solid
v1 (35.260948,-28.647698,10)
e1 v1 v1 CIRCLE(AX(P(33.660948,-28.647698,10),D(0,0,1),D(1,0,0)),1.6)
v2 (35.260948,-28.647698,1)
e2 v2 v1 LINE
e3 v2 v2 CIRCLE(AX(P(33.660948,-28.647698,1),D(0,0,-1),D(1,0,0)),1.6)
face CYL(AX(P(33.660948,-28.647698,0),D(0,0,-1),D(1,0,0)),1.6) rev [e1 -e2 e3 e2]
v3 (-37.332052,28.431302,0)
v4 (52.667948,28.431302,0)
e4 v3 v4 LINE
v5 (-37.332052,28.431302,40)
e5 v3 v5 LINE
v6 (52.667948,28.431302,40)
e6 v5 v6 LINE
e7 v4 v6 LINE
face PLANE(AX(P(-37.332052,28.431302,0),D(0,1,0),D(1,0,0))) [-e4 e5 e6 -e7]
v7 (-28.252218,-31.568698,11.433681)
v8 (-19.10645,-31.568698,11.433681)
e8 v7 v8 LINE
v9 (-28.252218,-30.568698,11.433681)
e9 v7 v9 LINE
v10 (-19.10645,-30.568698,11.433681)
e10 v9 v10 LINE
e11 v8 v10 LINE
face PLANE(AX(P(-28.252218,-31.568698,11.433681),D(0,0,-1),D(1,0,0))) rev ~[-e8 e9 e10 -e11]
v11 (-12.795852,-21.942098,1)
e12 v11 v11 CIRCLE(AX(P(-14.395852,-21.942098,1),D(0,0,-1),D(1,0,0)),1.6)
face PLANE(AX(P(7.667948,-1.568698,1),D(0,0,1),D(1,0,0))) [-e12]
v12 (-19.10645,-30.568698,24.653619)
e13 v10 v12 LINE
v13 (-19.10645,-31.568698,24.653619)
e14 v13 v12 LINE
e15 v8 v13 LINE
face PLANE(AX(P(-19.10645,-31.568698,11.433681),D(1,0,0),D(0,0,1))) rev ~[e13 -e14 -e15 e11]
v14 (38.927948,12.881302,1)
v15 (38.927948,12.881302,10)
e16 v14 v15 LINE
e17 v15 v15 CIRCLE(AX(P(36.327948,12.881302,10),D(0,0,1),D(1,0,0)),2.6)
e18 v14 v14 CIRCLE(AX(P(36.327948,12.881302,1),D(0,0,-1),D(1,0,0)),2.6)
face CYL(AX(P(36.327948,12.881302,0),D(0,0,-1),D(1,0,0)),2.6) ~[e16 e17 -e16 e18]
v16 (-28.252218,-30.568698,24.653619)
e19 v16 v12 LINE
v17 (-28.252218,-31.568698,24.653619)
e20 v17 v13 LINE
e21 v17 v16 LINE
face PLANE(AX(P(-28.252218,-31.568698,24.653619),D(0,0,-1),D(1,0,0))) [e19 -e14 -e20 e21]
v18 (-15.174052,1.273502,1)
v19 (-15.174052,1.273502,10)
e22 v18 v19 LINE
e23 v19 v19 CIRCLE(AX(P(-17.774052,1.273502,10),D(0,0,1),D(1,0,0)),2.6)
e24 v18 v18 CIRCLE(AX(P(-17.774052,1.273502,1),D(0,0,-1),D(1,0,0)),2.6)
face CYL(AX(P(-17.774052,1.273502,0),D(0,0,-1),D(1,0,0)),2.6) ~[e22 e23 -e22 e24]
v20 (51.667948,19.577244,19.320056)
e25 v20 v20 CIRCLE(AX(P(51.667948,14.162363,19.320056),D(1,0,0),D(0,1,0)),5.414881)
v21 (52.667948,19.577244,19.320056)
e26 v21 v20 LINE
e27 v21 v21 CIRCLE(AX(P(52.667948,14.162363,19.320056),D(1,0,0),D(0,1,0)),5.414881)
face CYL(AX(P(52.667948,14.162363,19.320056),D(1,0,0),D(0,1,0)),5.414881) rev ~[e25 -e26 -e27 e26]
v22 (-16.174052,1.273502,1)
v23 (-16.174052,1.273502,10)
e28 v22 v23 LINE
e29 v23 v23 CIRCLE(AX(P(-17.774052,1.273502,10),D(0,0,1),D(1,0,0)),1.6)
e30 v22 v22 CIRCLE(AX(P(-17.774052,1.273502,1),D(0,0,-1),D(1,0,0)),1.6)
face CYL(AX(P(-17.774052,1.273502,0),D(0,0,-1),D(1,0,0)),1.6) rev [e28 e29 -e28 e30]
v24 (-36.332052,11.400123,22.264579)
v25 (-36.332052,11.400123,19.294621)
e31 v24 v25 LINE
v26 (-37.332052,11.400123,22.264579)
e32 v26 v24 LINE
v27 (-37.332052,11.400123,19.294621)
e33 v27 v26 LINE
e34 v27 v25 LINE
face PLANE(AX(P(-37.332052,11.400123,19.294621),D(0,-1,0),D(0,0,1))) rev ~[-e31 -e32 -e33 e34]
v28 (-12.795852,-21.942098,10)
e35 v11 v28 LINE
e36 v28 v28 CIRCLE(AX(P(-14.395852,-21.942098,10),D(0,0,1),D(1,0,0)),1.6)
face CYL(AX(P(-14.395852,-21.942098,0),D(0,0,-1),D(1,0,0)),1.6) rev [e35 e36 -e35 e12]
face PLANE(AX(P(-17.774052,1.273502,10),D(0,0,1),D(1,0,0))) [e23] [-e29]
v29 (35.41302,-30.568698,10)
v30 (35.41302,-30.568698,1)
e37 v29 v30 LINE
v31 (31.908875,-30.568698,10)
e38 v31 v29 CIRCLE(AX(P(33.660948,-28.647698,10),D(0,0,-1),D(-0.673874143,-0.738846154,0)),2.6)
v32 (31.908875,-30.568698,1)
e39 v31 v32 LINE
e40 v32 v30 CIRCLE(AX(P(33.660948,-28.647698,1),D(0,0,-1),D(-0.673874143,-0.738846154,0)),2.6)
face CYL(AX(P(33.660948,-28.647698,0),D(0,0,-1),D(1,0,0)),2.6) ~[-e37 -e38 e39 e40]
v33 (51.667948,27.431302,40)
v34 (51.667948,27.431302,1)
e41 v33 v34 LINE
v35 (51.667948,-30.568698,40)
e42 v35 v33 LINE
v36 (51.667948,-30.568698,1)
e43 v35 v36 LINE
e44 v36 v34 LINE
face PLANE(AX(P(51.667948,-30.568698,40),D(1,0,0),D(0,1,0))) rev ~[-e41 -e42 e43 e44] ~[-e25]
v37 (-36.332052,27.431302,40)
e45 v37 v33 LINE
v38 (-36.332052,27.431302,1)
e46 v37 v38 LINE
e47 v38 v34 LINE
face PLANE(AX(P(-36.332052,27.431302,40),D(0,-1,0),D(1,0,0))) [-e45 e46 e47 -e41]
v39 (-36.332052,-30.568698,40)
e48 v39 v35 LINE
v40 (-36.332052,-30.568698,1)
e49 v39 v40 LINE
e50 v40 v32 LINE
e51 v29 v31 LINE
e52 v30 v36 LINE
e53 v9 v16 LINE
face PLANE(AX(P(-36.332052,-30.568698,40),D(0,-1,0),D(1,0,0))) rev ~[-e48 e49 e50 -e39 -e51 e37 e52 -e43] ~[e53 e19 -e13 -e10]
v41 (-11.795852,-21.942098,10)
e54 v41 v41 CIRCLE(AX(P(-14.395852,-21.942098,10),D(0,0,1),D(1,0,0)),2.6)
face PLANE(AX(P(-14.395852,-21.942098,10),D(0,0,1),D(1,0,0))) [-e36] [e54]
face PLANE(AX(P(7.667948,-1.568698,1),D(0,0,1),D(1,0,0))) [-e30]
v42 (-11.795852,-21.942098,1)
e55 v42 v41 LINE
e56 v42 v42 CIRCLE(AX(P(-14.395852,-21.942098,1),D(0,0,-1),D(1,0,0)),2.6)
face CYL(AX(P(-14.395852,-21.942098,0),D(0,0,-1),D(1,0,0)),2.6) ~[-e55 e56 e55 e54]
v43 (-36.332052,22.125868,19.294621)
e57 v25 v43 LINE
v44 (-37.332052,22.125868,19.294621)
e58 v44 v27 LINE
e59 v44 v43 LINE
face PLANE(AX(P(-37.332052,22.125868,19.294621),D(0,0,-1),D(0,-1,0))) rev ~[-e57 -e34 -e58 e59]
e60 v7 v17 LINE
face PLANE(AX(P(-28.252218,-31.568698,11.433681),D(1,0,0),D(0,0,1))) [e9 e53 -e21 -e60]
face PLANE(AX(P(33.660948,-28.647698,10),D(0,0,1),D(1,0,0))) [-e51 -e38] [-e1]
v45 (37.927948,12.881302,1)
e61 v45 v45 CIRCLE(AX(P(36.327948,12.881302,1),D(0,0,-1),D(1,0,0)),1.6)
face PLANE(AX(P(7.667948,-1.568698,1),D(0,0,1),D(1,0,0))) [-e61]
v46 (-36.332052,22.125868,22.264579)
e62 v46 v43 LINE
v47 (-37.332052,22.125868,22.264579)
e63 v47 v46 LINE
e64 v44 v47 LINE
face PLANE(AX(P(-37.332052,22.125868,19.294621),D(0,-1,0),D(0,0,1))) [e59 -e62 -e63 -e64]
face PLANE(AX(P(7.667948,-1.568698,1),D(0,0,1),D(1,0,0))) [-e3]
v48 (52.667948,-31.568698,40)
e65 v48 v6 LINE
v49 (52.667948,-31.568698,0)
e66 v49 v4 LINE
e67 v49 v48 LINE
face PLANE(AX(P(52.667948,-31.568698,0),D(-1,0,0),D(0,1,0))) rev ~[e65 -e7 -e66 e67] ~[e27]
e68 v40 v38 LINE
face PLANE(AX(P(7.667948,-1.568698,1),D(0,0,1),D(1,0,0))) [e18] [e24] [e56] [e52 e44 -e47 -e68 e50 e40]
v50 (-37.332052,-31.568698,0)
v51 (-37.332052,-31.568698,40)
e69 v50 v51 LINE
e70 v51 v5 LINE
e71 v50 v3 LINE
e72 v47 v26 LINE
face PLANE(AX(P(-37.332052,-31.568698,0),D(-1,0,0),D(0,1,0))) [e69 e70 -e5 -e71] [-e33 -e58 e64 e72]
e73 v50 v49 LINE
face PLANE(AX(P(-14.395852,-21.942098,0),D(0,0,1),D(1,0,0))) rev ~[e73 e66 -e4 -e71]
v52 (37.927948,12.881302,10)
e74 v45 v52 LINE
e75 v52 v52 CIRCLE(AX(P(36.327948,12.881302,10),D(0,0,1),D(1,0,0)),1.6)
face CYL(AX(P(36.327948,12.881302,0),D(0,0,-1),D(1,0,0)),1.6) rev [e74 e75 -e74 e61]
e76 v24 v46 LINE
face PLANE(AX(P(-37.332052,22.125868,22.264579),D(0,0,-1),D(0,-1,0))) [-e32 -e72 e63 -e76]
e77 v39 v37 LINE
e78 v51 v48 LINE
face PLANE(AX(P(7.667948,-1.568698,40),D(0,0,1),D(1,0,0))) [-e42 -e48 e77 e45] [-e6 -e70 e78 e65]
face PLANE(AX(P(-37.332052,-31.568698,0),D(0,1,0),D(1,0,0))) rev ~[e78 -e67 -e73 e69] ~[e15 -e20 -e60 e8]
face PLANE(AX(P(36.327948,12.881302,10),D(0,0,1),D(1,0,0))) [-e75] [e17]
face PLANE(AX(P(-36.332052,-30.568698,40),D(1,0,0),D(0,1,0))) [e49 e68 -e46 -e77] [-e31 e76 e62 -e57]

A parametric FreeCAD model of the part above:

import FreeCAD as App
import Part
import Sketcher
Q = App.Units.Quantity


def add_polygon(sketch, points):
    """Adds a closed chain of lines whose ends are joined by coincident constraints."""
    first, n = sketch.GeometryCount, len(points)
    for a, b in zip(points, points[1:] + points[:1]):
        sketch.addGeometry(Part.LineSegment(App.Vector(*a, 0), App.Vector(*b, 0)), False)
    for i in range(n):
        sketch.addConstraint(Sketcher.Constraint("Coincident", first + i, 2, first + (i + 1) % n, 1))

doc = App.newDocument("Part")
body = doc.addObject("PartDesign::Body", "Body")

sketch1 = doc.addObject("Sketcher::SketchObject", "Sketch")
body.addObject(sketch1)
sketch1.AttachmentSupport = (doc.XY_Plane, [""])
sketch1.MapMode = "FlatFace"
add_polygon(sketch1, [(-37.332052, 28.431302), (-37.332052, -31.568698), (52.667948, -31.568698), (52.667948, 28.431302)])
sketch1.addConstraint(Sketcher.Constraint("Vertical", 0))
sketch1.addConstraint(Sketcher.Constraint("Horizontal", 1))
sketch1.addConstraint(Sketcher.Constraint("Vertical", 2))
sketch1.addConstraint(Sketcher.Constraint("Horizontal", 3))
sketch1.addConstraint(Sketcher.Constraint("DistanceX", 1, 1, 1, 2, Q("90 mm")))
sketch1.addConstraint(Sketcher.Constraint("DistanceY", 0, 2, 0, 1, Q("60 mm")))
sketch1.addConstraint(Sketcher.Constraint("DistanceX", 0, 2, -1, 1, Q("37.332052 mm")))
sketch1.addConstraint(Sketcher.Constraint("DistanceY", 0, 2, -1, 1, Q("31.568698 mm")))
pad1 = doc.addObject("PartDesign::Pad", "Pad")
body.addObject(pad1)
pad1.Profile = sketch1
pad1.Length = 40

sketch2 = doc.addObject("Sketcher::SketchObject", "Sketch001")
body.addObject(sketch2)
sketch2.AttachmentSupport = (doc.XY_Plane, [""])
sketch2.MapMode = "FlatFace"
sketch2.AttachmentOffset = App.Placement(App.Vector(0, 0, 40), App.Rotation())
add_polygon(sketch2, [(-36.332052, 27.431302), (-36.332052, -30.568698), (51.667948, -30.568698), (51.667948, 27.431302)])
sketch2.addConstraint(Sketcher.Constraint("Vertical", 0))
sketch2.addConstraint(Sketcher.Constraint("Horizontal", 1))
sketch2.addConstraint(Sketcher.Constraint("Vertical", 2))
sketch2.addConstraint(Sketcher.Constraint("Horizontal", 3))
sketch2.addConstraint(Sketcher.Constraint("DistanceX", 1, 1, 1, 2, Q("88 mm")))
sketch2.addConstraint(Sketcher.Constraint("DistanceY", 0, 2, 0, 1, Q("58 mm")))
sketch2.addConstraint(Sketcher.Constraint("DistanceX", 0, 2, -1, 1, Q("36.332052 mm")))
sketch2.addConstraint(Sketcher.Constraint("DistanceY", 0, 2, -1, 1, Q("30.568698 mm")))
pocket1 = doc.addObject("PartDesign::Pocket", "Pocket")
body.addObject(pocket1)
pocket1.Profile = sketch2
pocket1.Length = 39

sketch3 = doc.addObject("Sketcher::SketchObject", "Sketch002")
body.addObject(sketch3)
sketch3.AttachmentSupport = (doc.XY_Plane, [""])
sketch3.MapMode = "FlatFace"
sketch3.addGeometry(Part.Circle(App.Vector(-14.395852, -21.942098, 0), App.Vector(0, 0, 1), 2.6), False)
sketch3.addGeometry(Part.Circle(App.Vector(-14.395852, -21.942098, 0), App.Vector(0, 0, 1), 1.6), False)
sketch3.addGeometry(Part.Circle(App.Vector(-17.774052, 1.273502, 0), App.Vector(0, 0, 1), 2.6), False)
sketch3.addGeometry(Part.Circle(App.Vector(-17.774052, 1.273502, 0), App.Vector(0, 0, 1), 1.6), False)
sketch3.addGeometry(Part.Circle(App.Vector(33.660948, -28.647698, 0), App.Vector(0, 0, 1), 2.6), False)
sketch3.addGeometry(Part.Circle(App.Vector(33.660948, -28.647698, 0), App.Vector(0, 0, 1), 1.6), False)
sketch3.addGeometry(Part.Circle(App.Vector(36.327948, 12.881302, 0), App.Vector(0, 0, 1), 2.6), False)
sketch3.addGeometry(Part.Circle(App.Vector(36.327948, 12.881302, 0), App.Vector(0, 0, 1), 1.6), False)
sketch3.addConstraint(Sketcher.Constraint("Coincident", 1, 3, 0, 3))
sketch3.addConstraint(Sketcher.Constraint("Coincident", 3, 3, 2, 3))
sketch3.addConstraint(Sketcher.Constraint("Coincident", 5, 3, 4, 3))
sketch3.addConstraint(Sketcher.Constraint("Coincident", 7, 3, 6, 3))
sketch3.addConstraint(Sketcher.Constraint("Equal", 0, 2))
sketch3.addConstraint(Sketcher.Constraint("Equal", 1, 3))
sketch3.addConstraint(Sketcher.Constraint("Equal", 2, 4))
sketch3.addConstraint(Sketcher.Constraint("Equal", 3, 5))
sketch3.addConstraint(Sketcher.Constraint("Equal", 4, 6))
sketch3.addConstraint(Sketcher.Constraint("Equal", 5, 7))
sketch3.addConstraint(Sketcher.Constraint("Diameter", 0, Q("5.2 mm")))
sketch3.addConstraint(Sketcher.Constraint("Diameter", 1, Q("3.2 mm")))
sketch3.addConstraint(Sketcher.Constraint("DistanceX", 2, 3, 4, 3, Q("51.435 mm")))
sketch3.addConstraint(Sketcher.Constraint("DistanceX", 4, 3, 6, 3, Q("2.667 mm")))
sketch3.addConstraint(Sketcher.Constraint("DistanceY", 4, 3, 6, 3, Q("41.529 mm")))
sketch3.addConstraint(Sketcher.Constraint("DistanceX", 2, 3, 0, 3, Q("3.3782 mm")))
sketch3.addConstraint(Sketcher.Constraint("DistanceY", 0, 3, 2, 3, Q("23.2156 mm")))
sketch3.addConstraint(Sketcher.Constraint("DistanceY", 4, 3, 0, 3, Q("6.7056 mm")))
sketch3.addConstraint(Sketcher.Constraint("DistanceX", 0, 3, -1, 1, Q("14.395852 mm")))
sketch3.addConstraint(Sketcher.Constraint("DistanceY", 0, 3, -1, 1, Q("21.942098 mm")))
pad2 = doc.addObject("PartDesign::Pad", "Pad001")
body.addObject(pad2)
pad2.Profile = sketch3
pad2.Length = 10

sketch4 = doc.addObject("Sketcher::SketchObject", "Sketch003")
body.addObject(sketch4)
sketch4.AttachmentSupport = (doc.XZ_Plane, [""])
sketch4.MapMode = "FlatFace"
sketch4.AttachmentOffset = App.Placement(App.Vector(0, 0, 31.568698), App.Rotation())
add_polygon(sketch4, [(-28.252218, 24.653619), (-28.252218, 11.433681), (-19.10645, 11.433681), (-19.10645, 24.653619)])
sketch4.addConstraint(Sketcher.Constraint("Vertical", 0))
sketch4.addConstraint(Sketcher.Constraint("Horizontal", 1))
sketch4.addConstraint(Sketcher.Constraint("Vertical", 2))
sketch4.addConstraint(Sketcher.Constraint("Horizontal", 3))
sketch4.addConstraint(Sketcher.Constraint("DistanceX", 1, 1, 1, 2, Q("9.145768 mm")))
sketch4.addConstraint(Sketcher.Constraint("DistanceY", 0, 2, 0, 1, Q("13.219938 mm")))
sketch4.addConstraint(Sketcher.Constraint("DistanceY", -1, 1, 0, 2, Q("11.433681 mm")))
sketch4.addConstraint(Sketcher.Constraint("DistanceX", 1, 2, -1, 1, Q("19.10645 mm")))
pocket2 = doc.addObject("PartDesign::Pocket", "Pocket001")
body.addObject(pocket2)
pocket2.Profile = sketch4
pocket2.Length = 2

sketch5 = doc.addObject("Sketcher::SketchObject", "Sketch004")
body.addObject(sketch5)
sketch5.AttachmentSupport = (doc.YZ_Plane, [""])
sketch5.MapMode = "FlatFace"
sketch5.AttachmentOffset = App.Placement(App.Vector(0, 0, -37.332052), App.Rotation())
add_polygon(sketch5, [(22.125868, 22.264579), (22.125868, 19.294621), (11.400123, 19.294621), (11.400123, 22.264579)])
sketch5.addConstraint(Sketcher.Constraint("Vertical", 0))
sketch5.addConstraint(Sketcher.Constraint("Horizontal", 1))
sketch5.addConstraint(Sketcher.Constraint("Vertical", 2))
sketch5.addConstraint(Sketcher.Constraint("Horizontal", 3))
sketch5.addConstraint(Sketcher.Constraint("DistanceX", 1, 2, 1, 1, Q("10.725745 mm")))
sketch5.addConstraint(Sketcher.Constraint("DistanceY", 0, 2, 0, 1, Q("2.969958 mm")))
sketch5.addConstraint(Sketcher.Constraint("DistanceX", -1, 1, 0, 2, Q("22.125868 mm")))
sketch5.addConstraint(Sketcher.Constraint("DistanceY", -1, 1, 0, 2, Q("19.294621 mm")))
pocket3 = doc.addObject("PartDesign::Pocket", "Pocket002")
body.addObject(pocket3)
pocket3.Profile = sketch5
pocket3.Length = 2
pocket3.Reversed = True

sketch6 = doc.addObject("Sketcher::SketchObject", "Sketch005")
body.addObject(sketch6)
sketch6.AttachmentSupport = (doc.YZ_Plane, [""])
sketch6.MapMode = "FlatFace"
sketch6.AttachmentOffset = App.Placement(App.Vector(0, 0, 52.667948), App.Rotation())
sketch6.addGeometry(Part.Circle(App.Vector(14.162363, 19.320056, 0), App.Vector(0, 0, 1), 5.414881), False)
sketch6.addConstraint(Sketcher.Constraint("Diameter", 0, Q("10.829762 mm")))
sketch6.addConstraint(Sketcher.Constraint("DistanceX", -1, 1, 0, 3, Q("14.162363 mm")))
sketch6.addConstraint(Sketcher.Constraint("DistanceY", -1, 1, 0, 3, Q("19.320056 mm")))
pocket4 = doc.addObject("PartDesign::Pocket", "Pocket003")
body.addObject(pocket4)
pocket4.Profile = sketch6
pocket4.Length = 2

doc.recompute()
